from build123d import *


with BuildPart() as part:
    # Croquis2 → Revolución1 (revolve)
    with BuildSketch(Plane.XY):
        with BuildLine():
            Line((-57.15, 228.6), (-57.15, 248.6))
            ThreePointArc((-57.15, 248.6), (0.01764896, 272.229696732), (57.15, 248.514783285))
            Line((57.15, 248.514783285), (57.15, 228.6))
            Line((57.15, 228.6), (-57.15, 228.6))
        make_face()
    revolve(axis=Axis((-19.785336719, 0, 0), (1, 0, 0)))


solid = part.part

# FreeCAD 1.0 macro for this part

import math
import FreeCAD as App
import Part
import Sketcher
Q = App.Units.Quantity

doc = App.newDocument("Part")
body = doc.addObject("PartDesign::Body", "Body")

# Sketch on XY plane
sketch1 = body.newObject("Sketcher::SketchObject", "Sketch")
sketch1.AttachmentSupport = (doc.getObject("XY_Plane"), [""])
sketch1.MapMode = "FlatFace"
sketch1.addGeometry(Part.LineSegment(App.Vector(-57, 249, 0), App.Vector(-57, 229, 0)), False)
sketch1.addGeometry(Part.LineSegment(App.Vector(-57, 229, 0), App.Vector(57, 229, 0)), False)
sketch1.addGeometry(Part.LineSegment(App.Vector(57, 229, 0), App.Vector(57, 249, 0)), False)
sketch1.addGeometry(Part.ArcOfCircle(Part.Circle(App.Vector(0, 191, 0), App.Vector(0, 0, 1), 81), math.radians(45), math.radians(135)), False)
sketch1.addConstraint(Sketcher.Constraint("Coincident", 0, 2, 1, 1))
sketch1.addConstraint(Sketcher.Constraint("Coincident", 1, 2, 2, 1))
sketch1.addConstraint(Sketcher.Constraint("Coincident", 2, 2, 3, 1))
sketch1.addConstraint(Sketcher.Constraint("Coincident", 3, 2, 0, 1))
sketch1.addConstraint(Sketcher.Constraint("Vertical", 0))
sketch1.addConstraint(Sketcher.Constraint("Horizontal", 1))
sketch1.addConstraint(Sketcher.Constraint("Vertical", 2))
sketch1.addConstraint(Sketcher.Constraint("DistanceY", 0, 2, 0, 1, Q("20 mm")))
sketch1.addConstraint(Sketcher.Constraint("DistanceX", 1, 1, 1, 2, Q("114.3 mm")))
sketch1.addConstraint(Sketcher.Constraint("DistanceY", -1, 1, 0, 2, Q("228.6 mm")))
sketch1.addConstraint(Sketcher.Constraint("DistanceX", 0, 2, -1, 1, Q("57.15 mm")))
sketch1.addConstraint(Sketcher.Constraint("Radius", 3, Q("80.822328 mm")))
sketch1.addConstraint(Sketcher.Constraint("DistanceY", 2, 1, 2, 2, Q("19.914783 mm")))
revolution = body.newObject("PartDesign::Revolution", "Revolution")
revolution.Profile = sketch1
revolution.ReferenceAxis = (sketch1, ["H_Axis"])
revolution.Angle = 360

doc.recompute()
